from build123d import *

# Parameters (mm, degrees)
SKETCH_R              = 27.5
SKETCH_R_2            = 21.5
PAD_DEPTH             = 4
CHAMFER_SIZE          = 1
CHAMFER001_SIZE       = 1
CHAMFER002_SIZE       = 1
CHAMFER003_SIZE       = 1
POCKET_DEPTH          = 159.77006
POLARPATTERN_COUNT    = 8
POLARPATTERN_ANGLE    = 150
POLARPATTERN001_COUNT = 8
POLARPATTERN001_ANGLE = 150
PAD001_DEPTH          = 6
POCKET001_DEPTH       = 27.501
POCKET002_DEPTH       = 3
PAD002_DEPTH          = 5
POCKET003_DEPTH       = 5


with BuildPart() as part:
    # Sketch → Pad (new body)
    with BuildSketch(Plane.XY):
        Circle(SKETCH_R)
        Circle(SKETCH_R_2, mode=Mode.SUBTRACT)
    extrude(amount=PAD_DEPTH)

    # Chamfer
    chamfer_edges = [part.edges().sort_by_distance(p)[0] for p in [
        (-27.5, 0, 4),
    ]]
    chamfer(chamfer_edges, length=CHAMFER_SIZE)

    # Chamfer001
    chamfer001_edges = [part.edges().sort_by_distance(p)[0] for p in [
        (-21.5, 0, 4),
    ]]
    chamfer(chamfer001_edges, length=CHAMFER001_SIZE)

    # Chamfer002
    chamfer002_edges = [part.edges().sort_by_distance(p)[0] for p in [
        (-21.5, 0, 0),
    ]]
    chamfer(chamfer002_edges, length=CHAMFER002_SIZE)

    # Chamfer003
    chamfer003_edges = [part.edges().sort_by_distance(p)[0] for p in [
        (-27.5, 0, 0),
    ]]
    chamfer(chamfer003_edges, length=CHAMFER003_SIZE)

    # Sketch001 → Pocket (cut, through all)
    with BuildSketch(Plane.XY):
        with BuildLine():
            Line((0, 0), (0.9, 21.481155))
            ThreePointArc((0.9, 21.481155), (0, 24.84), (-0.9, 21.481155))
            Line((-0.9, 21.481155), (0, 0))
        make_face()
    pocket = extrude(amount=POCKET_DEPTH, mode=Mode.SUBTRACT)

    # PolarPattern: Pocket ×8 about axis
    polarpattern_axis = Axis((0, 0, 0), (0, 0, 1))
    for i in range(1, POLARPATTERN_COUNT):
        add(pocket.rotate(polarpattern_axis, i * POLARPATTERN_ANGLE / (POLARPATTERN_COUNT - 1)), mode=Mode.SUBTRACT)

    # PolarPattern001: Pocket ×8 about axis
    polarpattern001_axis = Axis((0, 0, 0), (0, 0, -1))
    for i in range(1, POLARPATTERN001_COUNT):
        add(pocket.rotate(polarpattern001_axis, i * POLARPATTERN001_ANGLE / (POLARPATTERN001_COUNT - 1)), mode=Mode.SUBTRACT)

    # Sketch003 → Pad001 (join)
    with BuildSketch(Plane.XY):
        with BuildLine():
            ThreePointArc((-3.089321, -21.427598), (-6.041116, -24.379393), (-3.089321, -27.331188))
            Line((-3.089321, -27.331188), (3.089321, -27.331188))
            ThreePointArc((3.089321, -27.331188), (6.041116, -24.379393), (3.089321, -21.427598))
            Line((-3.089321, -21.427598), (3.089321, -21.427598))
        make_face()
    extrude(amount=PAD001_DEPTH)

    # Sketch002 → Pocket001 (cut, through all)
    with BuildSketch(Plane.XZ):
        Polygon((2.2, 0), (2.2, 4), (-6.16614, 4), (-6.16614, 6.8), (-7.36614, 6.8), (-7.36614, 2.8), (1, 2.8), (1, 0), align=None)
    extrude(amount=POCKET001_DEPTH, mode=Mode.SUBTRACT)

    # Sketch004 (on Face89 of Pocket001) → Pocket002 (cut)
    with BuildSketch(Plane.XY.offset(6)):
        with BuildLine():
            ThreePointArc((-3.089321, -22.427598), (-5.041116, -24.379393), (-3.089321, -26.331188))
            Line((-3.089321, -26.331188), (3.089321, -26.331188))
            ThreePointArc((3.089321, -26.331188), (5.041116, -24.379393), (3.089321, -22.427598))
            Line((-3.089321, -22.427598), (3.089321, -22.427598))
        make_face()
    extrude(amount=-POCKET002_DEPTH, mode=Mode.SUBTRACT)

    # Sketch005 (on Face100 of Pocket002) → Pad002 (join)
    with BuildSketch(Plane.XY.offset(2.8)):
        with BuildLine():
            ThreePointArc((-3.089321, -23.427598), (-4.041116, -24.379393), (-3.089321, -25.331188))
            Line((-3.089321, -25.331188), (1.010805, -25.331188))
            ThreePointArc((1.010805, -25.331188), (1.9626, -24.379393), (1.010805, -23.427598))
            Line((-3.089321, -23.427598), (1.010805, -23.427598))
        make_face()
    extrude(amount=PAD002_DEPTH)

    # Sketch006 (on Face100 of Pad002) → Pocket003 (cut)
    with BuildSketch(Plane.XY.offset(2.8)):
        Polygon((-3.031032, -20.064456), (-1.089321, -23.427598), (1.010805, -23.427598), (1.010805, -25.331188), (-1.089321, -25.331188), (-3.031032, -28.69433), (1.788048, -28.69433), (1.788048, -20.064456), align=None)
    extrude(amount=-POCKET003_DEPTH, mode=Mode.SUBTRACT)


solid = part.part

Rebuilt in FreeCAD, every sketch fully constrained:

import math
import FreeCAD as App
import Part
import Sketcher
Q = App.Units.Quantity


def edges_at(feature, points):
    """Names of the edges that pass closest to the given points."""
    edges = feature.Shape.Edges
    near = lambda p: min(range(len(edges)), key=lambda i: edges[i].distToShape(Part.Vertex(*p))[0])
    return sorted({f"Edge{near(p) + 1}" for p in points})

doc = App.newDocument("Part")
body = doc.addObject("PartDesign::Body", "Body")

# Sketch on XY plane
sketch1 = body.newObject("Sketcher::SketchObject", "Sketch")
sketch1.AttachmentSupport = (doc.getObject("XY_Plane"), [""])
sketch1.MapMode = "FlatFace"
sketch1.addGeometry(Part.Circle(App.Vector(0, 0, 0), App.Vector(0, 0, 1), 27.5), False)
sketch1.addGeometry(Part.Circle(App.Vector(0, 0, 0), App.Vector(0, 0, 1), 21.5), False)
sketch1.addConstraint(Sketcher.Constraint("Coincident", 0, 3, -1, 1))
sketch1.addConstraint(Sketcher.Constraint("Coincident", 1, 3, -1, 1))
sketch1.addConstraint(Sketcher.Constraint("Diameter", 0, Q("55 mm")))
sketch1.addConstraint(Sketcher.Constraint("Diameter", 1, Q("43 mm")))
pad1 = body.newObject("PartDesign::Pad", "Pad")
pad1.Profile = sketch1
pad1.Length = 4
doc.recompute()

chamfer = body.newObject("PartDesign::Chamfer", "Chamfer")
chamfer.Base = (pad1, edges_at(pad1, [(-27.5, 0, 4)]))
chamfer.Size = 1
doc.recompute()

chamfer2 = body.newObject("PartDesign::Chamfer", "Chamfer001")
chamfer2.Base = (chamfer, edges_at(chamfer, [(-21.5, 0, 4)]))
chamfer2.Size = 1
doc.recompute()

chamfer3 = body.newObject("PartDesign::Chamfer", "Chamfer002")
chamfer3.Base = (chamfer2, edges_at(chamfer2, [(-21.5, 0, 0)]))
chamfer3.Size = 1
doc.recompute()

chamfer4 = body.newObject("PartDesign::Chamfer", "Chamfer003")
chamfer4.Base = (chamfer3, edges_at(chamfer3, [(-27.5, 0, 0)]))
chamfer4.Size = 1

# Sketch on XY plane
sketch2 = body.newObject("Sketcher::SketchObject", "Sketch001")
sketch2.AttachmentSupport = (doc.getObject("XY_Plane"), [""])
sketch2.MapMode = "FlatFace"
sketch2.addGeometry(Part.LineSegment(App.Vector(0, 0, 0), App.Vector(0.9, 21.481155, 0)), False)
sketch2.addGeometry(Part.ArcOfCircle(Part.Circle(App.Vector(0, 23.04, 0), App.Vector(0, 0, 1), 1.8), math.radians(-59.999994), math.radians(239.999994)), False)
sketch2.addGeometry(Part.LineSegment(App.Vector(-0.9, 21.481155, 0), App.Vector(0, 0, 0)), False)
sketch2.addConstraint(Sketcher.Constraint("Coincident", 0, 2, 1, 1))
sketch2.addConstraint(Sketcher.Constraint("Coincident", 1, 2, 2, 1))
sketch2.addConstraint(Sketcher.Constraint("Coincident", 2, 2, 0, 1))
sketch2.addConstraint(Sketcher.Constraint("Coincident", 2, 2, -1, 1))
sketch2.addConstraint(Sketcher.Constraint("Symmetric", 0, 2, 1, 2, -2))
sketch2.addConstraint(Sketcher.Constraint("Radius", 1, Q("1.8 mm")))
sketch2.addConstraint(Sketcher.Constraint("Distance", 0, Q("21.5 mm")))
sketch2.addConstraint(Sketcher.Constraint("DistanceX", -1, 1, 0, 2, Q("0.9 mm")))
pocket1 = body.newObject("PartDesign::Pocket", "Pocket")
pocket1.Profile = sketch2
pocket1.Type = "ThroughAll"
pocket1.Reversed = True
doc.recompute()

polarpattern = body.newObject("PartDesign::PolarPattern", "PolarPattern")
polarpattern.Originals = [pocket1]
polarpattern.Axis = (doc.getObject("Z_Axis"), [""])
polarpattern.Angle = 150
polarpattern.Occurrences = 8
body.Tip = polarpattern
doc.recompute()

polarpattern2 = body.newObject("PartDesign::PolarPattern", "PolarPattern001")
polarpattern2.Originals = [pocket1]
polarpattern2.Axis = (doc.getObject("Z_Axis"), [""])
polarpattern2.Angle = 150
polarpattern2.Occurrences = 8
polarpattern2.Reversed = True
body.Tip = polarpattern2

# Sketch on XY plane
sketch3 = body.newObject("Sketcher::SketchObject", "Sketch002")
sketch3.AttachmentSupport = (doc.getObject("XY_Plane"), [""])
sketch3.MapMode = "FlatFace"
sketch3.addGeometry(Part.ArcOfCircle(Part.Circle(App.Vector(-3.089321, -24.379393, 0), App.Vector(0, 0, 1), 2.951795), math.radians(90), math.radians(270)), False)
sketch3.addGeometry(Part.LineSegment(App.Vector(-3.089321, -27.331188, 0), App.Vector(3.089321, -27.331188, 0)), False)
sketch3.addGeometry(Part.ArcOfCircle(Part.Circle(App.Vector(3.089321, -24.379393, 0), App.Vector(0, 0, 1), 2.951795), math.radians(-90), math.radians(90)), False)
sketch3.addGeometry(Part.LineSegment(App.Vector(3.089321, -21.427598, 0), App.Vector(-3.089321, -21.427598, 0)), False)
sketch3.addConstraint(Sketcher.Constraint("Tangent", 0, 2, 1, 1))
sketch3.addConstraint(Sketcher.Constraint("Tangent", 1, 2, 2, 1))
sketch3.addConstraint(Sketcher.Constraint("Tangent", 2, 2, 3, 1))
sketch3.addConstraint(Sketcher.Constraint("Tangent", 3, 2, 0, 1))
sketch3.addConstraint(Sketcher.Constraint("Horizontal", 1))
sketch3.addConstraint(Sketcher.Constraint("Horizontal", 3))
sketch3.addConstraint(Sketcher.Constraint("Radius", 0, Q("2.951795 mm")))
sketch3.addConstraint(Sketcher.Constraint("DistanceX", 1, 1, 1, 2, Q("6.178642 mm")))
sketch3.addConstraint(Sketcher.Constraint("DistanceX", 0, 3, -1, 1, Q("3.089321 mm")))
sketch3.addConstraint(Sketcher.Constraint("DistanceY", 0, 2, -1, 1, Q("27.331188 mm")))
pad2 = body.newObject("PartDesign::Pad", "Pad001")
pad2.Profile = sketch3
pad2.Length = 6

# Sketch on XZ plane
sketch4 = body.newObject("Sketcher::SketchObject", "Sketch003")
sketch4.AttachmentSupport = (doc.getObject("XZ_Plane"), [""])
sketch4.MapMode = "FlatFace"
sketch4.addGeometry(Part.LineSegment(App.Vector(2.2, 0, 0), App.Vector(2.2, 4, 0)), False)
sketch4.addGeometry(Part.LineSegment(App.Vector(2.2, 4, 0), App.Vector(-6.16614, 4, 0)), False)
sketch4.addGeometry(Part.LineSegment(App.Vector(-6.16614, 4, 0), App.Vector(-6.16614, 6.8, 0)), False)
sketch4.addGeometry(Part.LineSegment(App.Vector(-6.16614, 6.8, 0), App.Vector(-7.36614, 6.8, 0)), False)
sketch4.addGeometry(Part.LineSegment(App.Vector(-7.36614, 6.8, 0), App.Vector(-7.36614, 2.8, 0)), False)
sketch4.addGeometry(Part.LineSegment(App.Vector(-7.36614, 2.8, 0), App.Vector(1, 2.8, 0)), False)
sketch4.addGeometry(Part.LineSegment(App.Vector(1, 2.8, 0), App.Vector(1, 0, 0)), False)
sketch4.addGeometry(Part.LineSegment(App.Vector(1, 0, 0), App.Vector(2.2, 0, 0)), False)
sketch4.addConstraint(Sketcher.Constraint("Coincident", 0, 2, 1, 1))
sketch4.addConstraint(Sketcher.Constraint("Coincident", 1, 2, 2, 1))
sketch4.addConstraint(Sketcher.Constraint("Coincident", 2, 2, 3, 1))
sketch4.addConstraint(Sketcher.Constraint("Coincident", 3, 2, 4, 1))
sketch4.addConstraint(Sketcher.Constraint("Coincident", 4, 2, 5, 1))
sketch4.addConstraint(Sketcher.Constraint("Coincident", 5, 2, 6, 1))
sketch4.addConstraint(Sketcher.Constraint("Coincident", 6, 2, 7, 1))
sketch4.addConstraint(Sketcher.Constraint("Coincident", 7, 2, 0, 1))
sketch4.addConstraint(Sketcher.Constraint("Vertical", 0))
sketch4.addConstraint(Sketcher.Constraint("Horizontal", 1))
sketch4.addConstraint(Sketcher.Constraint("Vertical", 2))
sketch4.addConstraint(Sketcher.Constraint("Horizontal", 3))
sketch4.addConstraint(Sketcher.Constraint("Vertical", 4))
sketch4.addConstraint(Sketcher.Constraint("Horizontal", 5))
sketch4.addConstraint(Sketcher.Constraint("Vertical", 6))
sketch4.addConstraint(Sketcher.Constraint("Horizontal", 7))
sketch4.addConstraint(Sketcher.Constraint("PointOnObject", 6, 2, -1))
sketch4.addConstraint(Sketcher.Constraint("Equal", 1, 5))
sketch4.addConstraint(Sketcher.Constraint("Equal", 0, 4))
sketch4.addConstraint(Sketcher.Constraint("DistanceY", 0, 1, 0, 2, Q("4 mm")))
sketch4.addConstraint(Sketcher.Constraint("DistanceX", 3, 2, 3, 1, Q("1.2 mm")))
sketch4.addConstraint(Sketcher.Constraint("DistanceY", 2, 1, 2, 2, Q("2.8 mm")))
sketch4.addConstraint(Sketcher.Constraint("DistanceX", -1, 1, 5, 2, Q("1 mm")))
sketch4.addConstraint(Sketcher.Constraint("DistanceX", 1, 2, 1, 1, Q("8.36614 mm")))
pocket2 = body.newObject("PartDesign::Pocket", "Pocket001")
pocket2.Profile = sketch4
pocket2.Type = "ThroughAll"
pocket2.Reversed = True

# Sketch on XY plane
sketch5 = body.newObject("Sketcher::SketchObject", "Sketch004")
sketch5.AttachmentSupport = (doc.getObject("XY_Plane"), [""])
sketch5.MapMode = "FlatFace"
sketch5.AttachmentOffset = App.Placement(App.Vector(0, 0, 6), App.Rotation())
sketch5.addGeometry(Part.ArcOfCircle(Part.Circle(App.Vector(-3.089321, -24.379393, 0), App.Vector(0, 0, 1), 1.951795), math.radians(90), math.radians(270)), False)
sketch5.addGeometry(Part.LineSegment(App.Vector(-3.089321, -26.331188, 0), App.Vector(3.089321, -26.331188, 0)), False)
sketch5.addGeometry(Part.ArcOfCircle(Part.Circle(App.Vector(3.089321, -24.379393, 0), App.Vector(0, 0, 1), 1.951795), math.radians(-90), math.radians(90)), False)
sketch5.addGeometry(Part.LineSegment(App.Vector(3.089321, -22.427598, 0), App.Vector(-3.089321, -22.427598, 0)), False)
sketch5.addConstraint(Sketcher.Constraint("Tangent", 0, 2, 1, 1))
sketch5.addConstraint(Sketcher.Constraint("Tangent", 1, 2, 2, 1))
sketch5.addConstraint(Sketcher.Constraint("Tangent", 2, 2, 3, 1))
sketch5.addConstraint(Sketcher.Constraint("Tangent", 3, 2, 0, 1))
sketch5.addConstraint(Sketcher.Constraint("Horizontal", 1))
sketch5.addConstraint(Sketcher.Constraint("Horizontal", 3))
sketch5.addConstraint(Sketcher.Constraint("Radius", 0, Q("1.951795 mm")))
sketch5.addConstraint(Sketcher.Constraint("DistanceX", 1, 1, 1, 2, Q("6.178642 mm")))
sketch5.addConstraint(Sketcher.Constraint("DistanceX", 0, 3, -1, 1, Q("3.089321 mm")))
sketch5.addConstraint(Sketcher.Constraint("DistanceY", 0, 2, -1, 1, Q("26.331188 mm")))
pocket3 = body.newObject("PartDesign::Pocket", "Pocket002")
pocket3.Profile = sketch5
pocket3.Length = 3

# Sketch on XY plane
sketch6 = body.newObject("Sketcher::SketchObject", "Sketch005")
sketch6.AttachmentSupport = (doc.getObject("XY_Plane"), [""])
sketch6.MapMode = "FlatFace"
sketch6.AttachmentOffset = App.Placement(App.Vector(0, 0, 2.8), App.Rotation())
sketch6.addGeometry(Part.ArcOfCircle(Part.Circle(App.Vector(-3.089321, -24.379393, 0), App.Vector(0, 0, 1), 0.951795), math.radians(90), math.radians(270)), False)
sketch6.addGeometry(Part.LineSegment(App.Vector(-3.089321, -25.331188, 0), App.Vector(1.010805, -25.331188, 0)), False)
sketch6.addGeometry(Part.ArcOfCircle(Part.Circle(App.Vector(1.010805, -24.379393, 0), App.Vector(0, 0, 1), 0.951795), math.radians(-90), math.radians(90)), False)
sketch6.addGeometry(Part.LineSegment(App.Vector(1.010805, -23.427598, 0), App.Vector(-3.089321, -23.427598, 0)), False)
sketch6.addConstraint(Sketcher.Constraint("Tangent", 0, 2, 1, 1))
sketch6.addConstraint(Sketcher.Constraint("Tangent", 1, 2, 2, 1))
sketch6.addConstraint(Sketcher.Constraint("Tangent", 2, 2, 3, 1))
sketch6.addConstraint(Sketcher.Constraint("Tangent", 3, 2, 0, 1))
sketch6.addConstraint(Sketcher.Constraint("Horizontal", 1))
sketch6.addConstraint(Sketcher.Constraint("Horizontal", 3))
sketch6.addConstraint(Sketcher.Constraint("Radius", 0, Q("0.951795 mm")))
sketch6.addConstraint(Sketcher.Constraint("DistanceX", 1, 1, 1, 2, Q("4.100126 mm")))
sketch6.addConstraint(Sketcher.Constraint("DistanceX", 0, 3, -1, 1, Q("3.089321 mm")))
sketch6.addConstraint(Sketcher.Constraint("DistanceY", 0, 2, -1, 1, Q("25.331188 mm")))
pad3 = body.newObject("PartDesign::Pad", "Pad002")
pad3.Profile = sketch6
pad3.Length = 5

# Sketch on XY plane
sketch7 = body.newObject("Sketcher::SketchObject", "Sketch006")
sketch7.AttachmentSupport = (doc.getObject("XY_Plane"), [""])
sketch7.MapMode = "FlatFace"
sketch7.AttachmentOffset = App.Placement(App.Vector(0, 0, 2.8), App.Rotation())
sketch7.addGeometry(Part.LineSegment(App.Vector(-3.031032, -20.064456, 0), App.Vector(-1.089321, -23.427598, 0)), False)
sketch7.addGeometry(Part.LineSegment(App.Vector(-1.089321, -23.427598, 0), App.Vector(1.010805, -23.427598, 0)), False)
sketch7.addGeometry(Part.LineSegment(App.Vector(1.010805, -23.427598, 0), App.Vector(1.010805, -25.331188, 0)), False)
sketch7.addGeometry(Part.LineSegment(App.Vector(1.010805, -25.331188, 0), App.Vector(-1.089321, -25.331188, 0)), False)
sketch7.addGeometry(Part.LineSegment(App.Vector(-1.089321, -25.331188, 0), App.Vector(-3.031032, -28.69433, 0)), False)
sketch7.addGeometry(Part.LineSegment(App.Vector(-3.031032, -28.69433, 0), App.Vector(1.788048, -28.69433, 0)), False)
sketch7.addGeometry(Part.LineSegment(App.Vector(1.788048, -28.69433, 0), App.Vector(1.788048, -20.064456, 0)), False)
sketch7.addGeometry(Part.LineSegment(App.Vector(1.788048, -20.064456, 0), App.Vector(-3.031032, -20.064456, 0)), False)
sketch7.addConstraint(Sketcher.Constraint("Coincident", 0, 2, 1, 1))
sketch7.addConstraint(Sketcher.Constraint("Coincident", 1, 2, 2, 1))
sketch7.addConstraint(Sketcher.Constraint("Coincident", 2, 2, 3, 1))
sketch7.addConstraint(Sketcher.Constraint("Coincident", 3, 2, 4, 1))
sketch7.addConstraint(Sketcher.Constraint("Coincident", 4, 2, 5, 1))
sketch7.addConstraint(Sketcher.Constraint("Coincident", 5, 2, 6, 1))
sketch7.addConstraint(Sketcher.Constraint("Coincident", 6, 2, 7, 1))
sketch7.addConstraint(Sketcher.Constraint("Coincident", 7, 2, 0, 1))
sketch7.addConstraint(Sketcher.Constraint("Horizontal", 1))
sketch7.addConstraint(Sketcher.Constraint("Vertical", 2))
sketch7.addConstraint(Sketcher.Constraint("Horizontal", 3))
sketch7.addConstraint(Sketcher.Constraint("Horizontal", 5))
sketch7.addConstraint(Sketcher.Constraint("Vertical", 6))
sketch7.addConstraint(Sketcher.Constraint("Horizontal", 7))
sketch7.addConstraint(Sketcher.Constraint("Vertical", 0, 2, 3, 2))
sketch7.addConstraint(Sketcher.Constraint("Vertical", 4, 2, 7, 2))
sketch7.addConstraint(Sketcher.Constraint("Equal", 0, 4))
sketch7.addConstraint(Sketcher.Constraint("Angle", 0, Q("-59.999999 deg")))
sketch7.addConstraint(Sketcher.Constraint("DistanceX", 5, 1, 5, 2, Q("4.81908 mm")))
sketch7.addConstraint(Sketcher.Constraint("DistanceY", 2, 2, 2, 1, Q("1.90359 mm")))
sketch7.addConstraint(Sketcher.Constraint("Distance", 0, Q("3.883422 mm")))
sketch7.addConstraint(Sketcher.Constraint("DistanceX", 1, 1, 1, 2, Q("2.100126 mm")))
sketch7.addConstraint(Sketcher.Constraint("DistanceX", 0, 2, -1, 1, Q("1.089321 mm")))
sketch7.addConstraint(Sketcher.Constraint("DistanceY", 2, 2, -1, 1, Q("25.331188 mm")))
pocket4 = body.newObject("PartDesign::Pocket", "Pocket003")
pocket4.Profile = sketch7
pocket4.Length = 5

doc.recompute()
